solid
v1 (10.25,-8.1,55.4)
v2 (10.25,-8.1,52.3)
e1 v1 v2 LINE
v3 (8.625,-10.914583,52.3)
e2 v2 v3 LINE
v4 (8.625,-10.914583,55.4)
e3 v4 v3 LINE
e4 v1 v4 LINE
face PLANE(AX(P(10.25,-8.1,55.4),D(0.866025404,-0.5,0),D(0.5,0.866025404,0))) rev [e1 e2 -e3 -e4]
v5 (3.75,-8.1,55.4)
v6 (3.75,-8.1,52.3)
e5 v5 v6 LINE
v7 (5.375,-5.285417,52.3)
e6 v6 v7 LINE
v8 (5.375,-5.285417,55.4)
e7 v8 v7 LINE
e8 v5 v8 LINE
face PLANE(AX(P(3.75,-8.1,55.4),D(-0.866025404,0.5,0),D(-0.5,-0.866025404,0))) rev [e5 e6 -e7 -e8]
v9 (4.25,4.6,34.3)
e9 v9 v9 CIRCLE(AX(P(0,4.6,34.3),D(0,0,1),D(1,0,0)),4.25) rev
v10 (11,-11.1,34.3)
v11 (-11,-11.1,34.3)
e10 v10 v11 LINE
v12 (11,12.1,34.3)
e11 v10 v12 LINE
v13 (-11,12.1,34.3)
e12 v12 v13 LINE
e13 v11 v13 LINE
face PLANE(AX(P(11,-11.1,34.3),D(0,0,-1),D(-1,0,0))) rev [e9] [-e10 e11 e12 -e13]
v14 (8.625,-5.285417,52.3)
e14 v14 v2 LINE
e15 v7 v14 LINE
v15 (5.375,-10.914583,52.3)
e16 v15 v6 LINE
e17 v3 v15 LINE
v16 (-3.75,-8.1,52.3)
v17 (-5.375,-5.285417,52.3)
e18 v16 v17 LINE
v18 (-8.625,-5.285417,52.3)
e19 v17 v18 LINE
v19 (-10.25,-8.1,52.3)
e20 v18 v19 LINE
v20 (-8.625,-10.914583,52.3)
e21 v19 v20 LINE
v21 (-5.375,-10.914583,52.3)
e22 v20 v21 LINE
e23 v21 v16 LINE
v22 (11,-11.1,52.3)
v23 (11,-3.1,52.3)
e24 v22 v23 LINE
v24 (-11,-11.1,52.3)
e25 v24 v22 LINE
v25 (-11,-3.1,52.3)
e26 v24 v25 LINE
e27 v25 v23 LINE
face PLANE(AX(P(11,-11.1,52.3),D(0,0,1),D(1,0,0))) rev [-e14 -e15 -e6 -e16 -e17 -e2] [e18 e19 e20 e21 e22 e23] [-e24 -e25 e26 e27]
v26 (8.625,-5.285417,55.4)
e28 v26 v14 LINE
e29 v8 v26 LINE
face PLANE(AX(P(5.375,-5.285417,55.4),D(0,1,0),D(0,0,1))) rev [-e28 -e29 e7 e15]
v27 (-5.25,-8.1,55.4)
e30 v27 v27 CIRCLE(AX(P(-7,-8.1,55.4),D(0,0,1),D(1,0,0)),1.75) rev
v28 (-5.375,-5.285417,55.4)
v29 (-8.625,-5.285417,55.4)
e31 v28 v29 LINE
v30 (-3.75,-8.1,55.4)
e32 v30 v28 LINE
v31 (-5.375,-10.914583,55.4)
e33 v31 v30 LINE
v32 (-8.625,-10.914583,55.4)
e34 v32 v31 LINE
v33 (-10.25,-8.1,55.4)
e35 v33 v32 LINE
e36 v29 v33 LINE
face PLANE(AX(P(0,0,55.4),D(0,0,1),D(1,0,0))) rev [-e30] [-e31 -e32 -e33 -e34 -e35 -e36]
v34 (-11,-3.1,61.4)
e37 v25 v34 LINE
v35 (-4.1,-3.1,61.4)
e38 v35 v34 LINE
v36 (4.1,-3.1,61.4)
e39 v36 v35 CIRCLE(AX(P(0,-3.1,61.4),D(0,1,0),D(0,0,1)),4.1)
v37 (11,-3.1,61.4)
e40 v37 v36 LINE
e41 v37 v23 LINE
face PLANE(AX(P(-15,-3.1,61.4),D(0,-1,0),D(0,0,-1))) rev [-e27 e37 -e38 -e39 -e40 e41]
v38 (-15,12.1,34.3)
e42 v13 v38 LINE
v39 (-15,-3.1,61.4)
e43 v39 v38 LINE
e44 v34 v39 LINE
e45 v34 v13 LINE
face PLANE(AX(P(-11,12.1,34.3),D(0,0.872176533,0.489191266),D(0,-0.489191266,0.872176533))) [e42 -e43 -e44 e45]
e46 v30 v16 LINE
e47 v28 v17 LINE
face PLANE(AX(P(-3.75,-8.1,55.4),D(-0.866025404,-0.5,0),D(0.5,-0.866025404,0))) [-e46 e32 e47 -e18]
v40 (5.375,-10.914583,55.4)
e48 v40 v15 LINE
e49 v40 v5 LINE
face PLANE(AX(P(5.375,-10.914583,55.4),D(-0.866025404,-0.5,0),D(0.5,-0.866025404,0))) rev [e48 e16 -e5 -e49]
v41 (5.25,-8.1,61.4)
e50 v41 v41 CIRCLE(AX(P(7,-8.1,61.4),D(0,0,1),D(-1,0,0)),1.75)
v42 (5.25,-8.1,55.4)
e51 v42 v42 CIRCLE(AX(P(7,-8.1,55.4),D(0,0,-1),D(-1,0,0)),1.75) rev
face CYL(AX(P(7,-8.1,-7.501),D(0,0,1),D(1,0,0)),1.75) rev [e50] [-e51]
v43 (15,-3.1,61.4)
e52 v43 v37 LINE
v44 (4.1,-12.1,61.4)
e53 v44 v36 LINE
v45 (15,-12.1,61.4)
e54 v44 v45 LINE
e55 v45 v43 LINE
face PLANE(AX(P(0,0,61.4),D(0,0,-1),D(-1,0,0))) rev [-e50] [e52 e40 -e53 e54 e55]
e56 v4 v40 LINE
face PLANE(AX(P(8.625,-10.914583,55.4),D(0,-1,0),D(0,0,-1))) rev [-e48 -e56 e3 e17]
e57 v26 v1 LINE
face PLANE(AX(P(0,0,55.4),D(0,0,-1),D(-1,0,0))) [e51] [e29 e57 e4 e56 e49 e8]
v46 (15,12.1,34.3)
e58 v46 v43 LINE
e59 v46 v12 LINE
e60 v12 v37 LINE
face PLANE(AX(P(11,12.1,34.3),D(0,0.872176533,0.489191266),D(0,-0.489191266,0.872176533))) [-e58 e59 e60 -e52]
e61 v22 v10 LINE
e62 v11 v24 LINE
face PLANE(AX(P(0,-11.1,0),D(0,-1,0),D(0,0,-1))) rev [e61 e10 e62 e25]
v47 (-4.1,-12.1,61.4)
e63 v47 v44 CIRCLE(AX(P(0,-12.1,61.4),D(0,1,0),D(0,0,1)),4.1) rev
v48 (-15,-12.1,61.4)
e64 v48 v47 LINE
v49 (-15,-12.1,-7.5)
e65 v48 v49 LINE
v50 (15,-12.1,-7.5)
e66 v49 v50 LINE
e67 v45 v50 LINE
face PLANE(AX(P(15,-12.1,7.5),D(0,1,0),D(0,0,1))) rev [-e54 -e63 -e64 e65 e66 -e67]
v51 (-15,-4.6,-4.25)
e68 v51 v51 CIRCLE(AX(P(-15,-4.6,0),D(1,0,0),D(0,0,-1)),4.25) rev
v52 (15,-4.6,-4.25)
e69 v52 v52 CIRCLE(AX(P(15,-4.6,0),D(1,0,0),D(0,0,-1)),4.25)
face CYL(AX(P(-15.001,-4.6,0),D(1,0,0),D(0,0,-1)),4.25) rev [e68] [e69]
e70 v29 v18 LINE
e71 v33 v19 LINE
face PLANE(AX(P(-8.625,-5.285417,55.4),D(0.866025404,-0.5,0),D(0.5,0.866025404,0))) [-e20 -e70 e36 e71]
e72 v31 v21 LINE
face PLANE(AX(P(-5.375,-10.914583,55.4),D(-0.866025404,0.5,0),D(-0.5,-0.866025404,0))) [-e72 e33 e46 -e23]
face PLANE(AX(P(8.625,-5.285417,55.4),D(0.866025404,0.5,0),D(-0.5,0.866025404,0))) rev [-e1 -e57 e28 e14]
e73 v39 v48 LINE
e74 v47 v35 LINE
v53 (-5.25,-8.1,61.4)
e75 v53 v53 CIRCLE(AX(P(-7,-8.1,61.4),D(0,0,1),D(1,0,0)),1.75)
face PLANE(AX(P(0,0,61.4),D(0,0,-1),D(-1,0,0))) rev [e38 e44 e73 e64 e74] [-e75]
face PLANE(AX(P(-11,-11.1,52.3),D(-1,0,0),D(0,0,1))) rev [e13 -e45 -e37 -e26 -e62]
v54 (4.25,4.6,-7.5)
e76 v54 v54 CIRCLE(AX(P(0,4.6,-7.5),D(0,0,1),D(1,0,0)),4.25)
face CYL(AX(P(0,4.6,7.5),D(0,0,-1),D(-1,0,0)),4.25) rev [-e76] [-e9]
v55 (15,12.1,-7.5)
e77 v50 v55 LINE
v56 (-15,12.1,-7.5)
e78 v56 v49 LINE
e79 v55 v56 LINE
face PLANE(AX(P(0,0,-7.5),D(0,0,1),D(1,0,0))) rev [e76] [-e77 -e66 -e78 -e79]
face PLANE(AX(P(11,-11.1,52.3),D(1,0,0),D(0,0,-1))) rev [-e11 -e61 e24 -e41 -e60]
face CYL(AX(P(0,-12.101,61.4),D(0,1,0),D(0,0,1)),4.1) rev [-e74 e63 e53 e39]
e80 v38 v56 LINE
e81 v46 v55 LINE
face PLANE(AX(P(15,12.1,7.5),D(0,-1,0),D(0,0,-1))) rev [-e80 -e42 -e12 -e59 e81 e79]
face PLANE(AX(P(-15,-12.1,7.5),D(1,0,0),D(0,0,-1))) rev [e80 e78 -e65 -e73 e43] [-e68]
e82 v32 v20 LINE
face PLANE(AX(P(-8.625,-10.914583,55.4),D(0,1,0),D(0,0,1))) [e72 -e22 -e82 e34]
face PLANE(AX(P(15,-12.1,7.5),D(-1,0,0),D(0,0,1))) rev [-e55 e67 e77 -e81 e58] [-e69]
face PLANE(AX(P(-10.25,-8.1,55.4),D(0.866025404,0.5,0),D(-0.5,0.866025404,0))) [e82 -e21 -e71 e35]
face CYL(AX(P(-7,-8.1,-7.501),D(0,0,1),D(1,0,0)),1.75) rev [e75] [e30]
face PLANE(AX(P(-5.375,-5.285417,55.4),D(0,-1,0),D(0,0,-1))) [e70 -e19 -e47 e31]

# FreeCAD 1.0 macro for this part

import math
import FreeCAD as App
import Part
import Sketcher
from FreeCAD import Vector
Q = App.Units.Quantity


def add_polygon(sketch, points):
    """Adds a closed chain of lines whose ends are joined by coincident constraints."""
    first, n = sketch.GeometryCount, len(points)
    for a, b in zip(points, points[1:] + points[:1]):
        sketch.addGeometry(Part.LineSegment(App.Vector(*a, 0), App.Vector(*b, 0)), False)
    for i in range(n):
        sketch.addConstraint(Sketcher.Constraint("Coincident", first + i, 2, first + (i + 1) % n, 1))

doc = App.newDocument("Part")
body = doc.addObject("PartDesign::Body", "Body")

sketch1 = doc.addObject("Sketcher::SketchObject", "Sketch")
body.addObject(sketch1)
sketch1.AttachmentSupport = (doc.XY_Plane, [""])
sketch1.MapMode = "FlatFace"
add_polygon(sketch1, [(-15, 12.1), (-15, -12.1), (15, -12.1), (15, 12.1)])
sketch1.addGeometry(Part.Circle(Vector(0, 4.6, 0), Vector(0, 0, 1), 4.25), False)
sketch1.addConstraint([
    Sketcher.Constraint("Vertical", 0),
    Sketcher.Constraint("Horizontal", 1),
    Sketcher.Constraint("Vertical", 2),
    Sketcher.Constraint("Horizontal", 3),
    Sketcher.Constraint("Symmetric", 0, 2, 2, 2, -1, 1),
    Sketcher.Constraint("PointOnObject", 4, 3, -2),
    Sketcher.Constraint("Diameter", 4, Q("8.5 mm")),
    Sketcher.Constraint("DistanceX", 1, 1, 1, 2, Q("30 mm")),
    Sketcher.Constraint("DistanceY", 0, 2, 0, 1, Q("24.2 mm")),
    Sketcher.Constraint("DistanceY", -1, 1, 4, 3, Q("4.6 mm")),
])
pad1 = doc.addObject("PartDesign::Pad", "Pad")
body.addObject(pad1)
pad1.Profile = sketch1
pad1.Length = 15
pad1.Midplane = True

sketch2 = doc.addObject("Sketcher::SketchObject", "Sketch001")
body.addObject(sketch2)
sketch2.AttachmentSupport = (doc.YZ_Plane, [""])
sketch2.MapMode = "FlatFace"
sketch2.AttachmentOffset = App.Placement(Vector(0, 0, 15), App.Rotation())
sketch2.addGeometry(Part.Circle(Vector(-4.6, 0, 0), Vector(0, 0, 1), 4.25), False)
sketch2.addConstraint([
    Sketcher.Constraint("PointOnObject", 0, 3, -1),
    Sketcher.Constraint("Diameter", 0, Q("8.5 mm")),
    Sketcher.Constraint("DistanceX", 0, 3, -1, 1, Q("4.6 mm")),
])
pocket1 = doc.addObject("PartDesign::Pocket", "Pocket")
body.addObject(pocket1)
pocket1.Profile = sketch2
pocket1.Type = "UpToFirst"

sketch3 = doc.addObject("Sketcher::SketchObject", "Sketch002")
body.addObject(sketch3)
sketch3.AttachmentSupport = (doc.XY_Plane, [""])
sketch3.MapMode = "FlatFace"
sketch3.AttachmentOffset = App.Placement(Vector(0, 0, 7.5), App.Rotation())
add_polygon(sketch3, [(-15, -3.1), (-15, -12.1), (15, -12.1), (15, -3.1)])
sketch3.addConstraint([
    Sketcher.Constraint("Vertical", 0),
    Sketcher.Constraint("Horizontal", 1),
    Sketcher.Constraint("Vertical", 2),
    Sketcher.Constraint("Horizontal", 3),
    Sketcher.Constraint("DistanceX", 1, 1, 1, 2, Q("30 mm")),
    Sketcher.Constraint("DistanceY", 0, 2, 0, 1, Q("9 mm")),
    Sketcher.Constraint("DistanceX", 0, 2, -1, 1, Q("15 mm")),
    Sketcher.Constraint("DistanceY", 0, 2, -1, 1, Q("12.1 mm")),
])
pad2 = doc.addObject("PartDesign::Pad", "Pad001")
body.addObject(pad2)
pad2.Profile = sketch3
pad2.Length = 53.9

sketch4 = doc.addObject("Sketcher::SketchObject", "Sketch003")
body.addObject(sketch4)
sketch4.AttachmentSupport = (doc.XZ_Plane, [""])
sketch4.MapMode = "FlatFace"
sketch4.AttachmentOffset = App.Placement(Vector(0, 0, 3.1), App.Rotation())
sketch4.addGeometry([
    Part.LineSegment(Vector(-4.1, 61.4, 0), Vector(4.1, 61.4, 0)),
    Part.ArcOfCircle(Part.Circle(Vector(0, 61.4, 0), Vector(0, 0, 1), 4.1), math.radians(180), math.radians(360)),
], False)
sketch4.addConstraint([
    Sketcher.Constraint("Coincident", 0, 1, 1, 1),
    Sketcher.Constraint("Coincident", 1, 2, 0, 2),
    Sketcher.Constraint("Horizontal", 0),
    Sketcher.Constraint("PointOnObject", 1, 3, -2),
    Sketcher.Constraint("Horizontal", 1, 3, 0, 1),
    Sketcher.Constraint("Radius", 1, Q("4.1 mm")),
    Sketcher.Constraint("DistanceY", -1, 1, 1, 3, Q("61.4 mm")),
])
pocket2 = doc.addObject("PartDesign::Pocket", "Pocket001")
body.addObject(pocket2)
pocket2.Profile = sketch4
pocket2.Type = "UpToFirst"
pocket2.Reversed = True

sketch5 = doc.addObject("Sketcher::SketchObject", "Sketch004")
body.addObject(sketch5)
sketch5.AttachmentSupport = (doc.XZ_Plane, [""])
sketch5.MapMode = "FlatFace"
sketch5.AttachmentOffset = App.Placement(Vector(0, 0, 3.1), App.Rotation())
add_polygon(sketch5, [(-11, 34.3), (-11, 52.3), (11, 52.3), (11, 34.3)])
sketch5.addConstraint([
    Sketcher.Constraint("Vertical", 0),
    Sketcher.Constraint("Horizontal", 1),
    Sketcher.Constraint("Vertical", 2),
    Sketcher.Constraint("Horizontal", 3),
    Sketcher.Constraint("DistanceX", 1, 1, 1, 2, Q("22 mm")),
    Sketcher.Constraint("DistanceY", 0, 1, 0, 2, Q("18 mm")),
    Sketcher.Constraint("DistanceX", 0, 2, -1, 1, Q("11 mm")),
    Sketcher.Constraint("DistanceY", -1, 1, 0, 2, Q("52.3 mm")),
])
pocket3 = doc.addObject("PartDesign::Pocket", "Pocket002")
body.addObject(pocket3)
pocket3.Profile = sketch5
pocket3.Length = 8
pocket3.Reversed = True

sketch6 = doc.addObject("Sketcher::SketchObject", "Sketch005")
body.addObject(sketch6)
sketch6.AttachmentSupport = (doc.XY_Plane, [""])
sketch6.MapMode = "FlatFace"
sketch6.AttachmentOffset = App.Placement(Vector(0, 0, 61.4), App.Rotation())
sketch6.addGeometry(Part.Circle(Vector(-7, -8.1, 0), Vector(0, 0, 1), 1.75), False)
sketch6.addConstraint([
    Sketcher.Constraint("Diameter", 0, Q("3.5 mm")),
    Sketcher.Constraint("DistanceX", 0, 3, -1, 1, Q("7 mm")),
    Sketcher.Constraint("DistanceY", 0, 3, -1, 1, Q("8.1 mm")),
])
pocket4 = doc.addObject("PartDesign::Pocket", "Pocket003")
body.addObject(pocket4)
pocket4.Profile = sketch6
pocket4.Type = "UpToFirst"

sketch7 = doc.addObject("Sketcher::SketchObject", "Sketch006")
body.addObject(sketch7)
sketch7.AttachmentSupport = (doc.XY_Plane, [""])
sketch7.MapMode = "FlatFace"
sketch7.AttachmentOffset = App.Placement(Vector(0, 0, 61.4), App.Rotation())
sketch7.addGeometry(Part.Circle(Vector(7, -8.1, 0), Vector(0, 0, 1), 1.75), False)
sketch7.addConstraint([
    Sketcher.Constraint("Diameter", 0, Q("3.5 mm")),
    Sketcher.Constraint("DistanceX", -1, 1, 0, 3, Q("7 mm")),
    Sketcher.Constraint("DistanceY", 0, 3, -1, 1, Q("8.1 mm")),
])
pocket5 = doc.addObject("PartDesign::Pocket", "Pocket004")
body.addObject(pocket5)
pocket5.Profile = sketch7
pocket5.Type = "UpToFirst"

sketch8 = doc.addObject("Sketcher::SketchObject", "Sketch007")
body.addObject(sketch8)
sketch8.AttachmentSupport = (doc.XY_Plane, [""])
sketch8.MapMode = "FlatFace"
sketch8.AttachmentOffset = App.Placement(Vector(0, 0, 52.3), App.Rotation())
add_polygon(sketch8, [(3.75, -8.1), (5.375, -5.285417), (8.625, -5.285417), (10.25, -8.1), (8.625, -10.914583), (5.375, -10.914583)])
add_polygon(sketch8, [(-3.75, -8.1), (-5.375, -10.914583), (-8.625, -10.914583), (-10.25, -8.1), (-8.625, -5.285417), (-5.375, -5.285417)])
sketch8.addConstraint([
    Sketcher.Constraint("Horizontal", 1),
    Sketcher.Constraint("Horizontal", 4),
    Sketcher.Constraint("Horizontal", 7),
    Sketcher.Constraint("Horizontal", 10),
    Sketcher.Constraint("Symmetric", 4, 2, 6, 2, -2),
    Sketcher.Constraint("Symmetric", 2, 2, 8, 2, -2),
    Sketcher.Constraint("Symmetric", 1, 2, 9, 2, -2),
    Sketcher.Constraint("Symmetric", 5, 2, 11, 2, -2),
    Sketcher.Constraint("Parallel", 0, 3),
    Sketcher.Constraint("Parallel", 2, 5),
    Sketcher.Constraint("Parallel", 3, 6),
    Sketcher.Constraint("Parallel", 5, 8),
    Sketcher.Constraint("Parallel", 8, 11),
    Sketcher.Constraint("Horizontal", 2, 2, 5, 2),
    Sketcher.Constraint("Vertical", 1, 2, 3, 2),
    Sketcher.Constraint("Angle", 0, Q("60 deg")),
    Sketcher.Constraint("DistanceX", 6, 2, 3, 2, Q("14 mm")),
    Sketcher.Constraint("DistanceX", 1, 1, 1, 2, Q("3.25 mm")),
    Sketcher.Constraint("DistanceY", 2, 2, -1, 1, Q("8.1 mm")),
    Sketcher.Constraint("DistanceX", 5, 2, 2, 2, Q("6.5 mm")),
])
pocket6 = doc.addObject("PartDesign::Pocket", "Pocket005")
body.addObject(pocket6)
pocket6.Profile = sketch8
pocket6.Length = 3.1
pocket6.Reversed = True

sketch9 = doc.addObject("Sketcher::SketchObject", "Sketch008")
body.addObject(sketch9)
sketch9.AttachmentSupport = (doc.XY_Plane, [""])
sketch9.MapMode = "FlatFace"
sketch9.AttachmentOffset = App.Placement(Vector(0, 0, 7.5), App.Rotation())
add_polygon(sketch9, [(-15, 12.1), (-15, -3.1), (15, -3.1), (15, 12.1)])
sketch9.addGeometry(Part.Circle(Vector(0, 4.6, 0), Vector(0, 0, 1), 4.25), False)
sketch9.addConstraint([
    Sketcher.Constraint("Vertical", 0),
    Sketcher.Constraint("Horizontal", 1),
    Sketcher.Constraint("Vertical", 2),
    Sketcher.Constraint("Horizontal", 3),
    Sketcher.Constraint("PointOnObject", 4, 3, -2),
    Sketcher.Constraint("Diameter", 4, Q("8.5 mm")),
    Sketcher.Constraint("DistanceX", 1, 1, 1, 2, Q("30 mm")),
    Sketcher.Constraint("DistanceY", 0, 2, 0, 1, Q("15.2 mm")),
    Sketcher.Constraint("DistanceX", 0, 2, -1, 1, Q("15 mm")),
    Sketcher.Constraint("DistanceY", -1, 1, 4, 3, Q("4.6 mm")),
    Sketcher.Constraint("DistanceY", 0, 2, -1, 1, Q("3.1 mm")),
])
pad3 = doc.addObject("PartDesign::Pad", "Pad002")
body.addObject(pad3)
pad3.Profile = sketch9
pad3.Length = 26.8

sketch10 = doc.addObject("Sketcher::SketchObject", "Sketch009")
body.addObject(sketch10)
sketch10.AttachmentSupport = (doc.YZ_Plane, [""])
sketch10.MapMode = "FlatFace"
sketch10.AttachmentOffset = App.Placement(Vector(0, 0, -15), App.Rotation())
add_polygon(sketch10, [(-3.1, 61.4), (12.1, 34.3), (-3.1, 34.3)])
sketch10.addConstraint([
    Sketcher.Constraint("Horizontal", 1),
    Sketcher.Constraint("Vertical", 2),
    Sketcher.Constraint("DistanceX", 1, 2, 1, 1, Q("15.2 mm")),
    Sketcher.Constraint("DistanceY", 2, 1, 2, 2, Q("27.1 mm")),
    Sketcher.Constraint("DistanceX", -1, 1, 0, 2, Q("12.1 mm")),
    Sketcher.Constraint("DistanceY", -1, 1, 0, 2, Q("34.3 mm")),
])
pad4 = doc.addObject("PartDesign::Pad", "Pad003")
body.addObject(pad4)
pad4.Profile = sketch10
pad4.Length = 4

sketch11 = doc.addObject("Sketcher::SketchObject", "Sketch010")
body.addObject(sketch11)
sketch11.AttachmentSupport = (doc.YZ_Plane, [""])
sketch11.MapMode = "FlatFace"
sketch11.AttachmentOffset = App.Placement(Vector(0, 0, 11), App.Rotation())
add_polygon(sketch11, [(12.1, 34.3), (-3.1, 61.4), (-3.1, 34.3)])
sketch11.addConstraint([
    Sketcher.Constraint("Vertical", 1),
    Sketcher.Constraint("Horizontal", 2),
    Sketcher.Constraint("DistanceX", 2, 1, 2, 2, Q("15.2 mm")),
    Sketcher.Constraint("DistanceY", 1, 2, 1, 1, Q("27.1 mm")),
    Sketcher.Constraint("DistanceX", 0, 2, -1, 1, Q("3.1 mm")),
    Sketcher.Constraint("DistanceY", -1, 1, 0, 2, Q("61.4 mm")),
])
pad5 = doc.addObject("PartDesign::Pad", "Pad004")
body.addObject(pad5)
pad5.Profile = sketch11
pad5.Length = 4

doc.recompute()
